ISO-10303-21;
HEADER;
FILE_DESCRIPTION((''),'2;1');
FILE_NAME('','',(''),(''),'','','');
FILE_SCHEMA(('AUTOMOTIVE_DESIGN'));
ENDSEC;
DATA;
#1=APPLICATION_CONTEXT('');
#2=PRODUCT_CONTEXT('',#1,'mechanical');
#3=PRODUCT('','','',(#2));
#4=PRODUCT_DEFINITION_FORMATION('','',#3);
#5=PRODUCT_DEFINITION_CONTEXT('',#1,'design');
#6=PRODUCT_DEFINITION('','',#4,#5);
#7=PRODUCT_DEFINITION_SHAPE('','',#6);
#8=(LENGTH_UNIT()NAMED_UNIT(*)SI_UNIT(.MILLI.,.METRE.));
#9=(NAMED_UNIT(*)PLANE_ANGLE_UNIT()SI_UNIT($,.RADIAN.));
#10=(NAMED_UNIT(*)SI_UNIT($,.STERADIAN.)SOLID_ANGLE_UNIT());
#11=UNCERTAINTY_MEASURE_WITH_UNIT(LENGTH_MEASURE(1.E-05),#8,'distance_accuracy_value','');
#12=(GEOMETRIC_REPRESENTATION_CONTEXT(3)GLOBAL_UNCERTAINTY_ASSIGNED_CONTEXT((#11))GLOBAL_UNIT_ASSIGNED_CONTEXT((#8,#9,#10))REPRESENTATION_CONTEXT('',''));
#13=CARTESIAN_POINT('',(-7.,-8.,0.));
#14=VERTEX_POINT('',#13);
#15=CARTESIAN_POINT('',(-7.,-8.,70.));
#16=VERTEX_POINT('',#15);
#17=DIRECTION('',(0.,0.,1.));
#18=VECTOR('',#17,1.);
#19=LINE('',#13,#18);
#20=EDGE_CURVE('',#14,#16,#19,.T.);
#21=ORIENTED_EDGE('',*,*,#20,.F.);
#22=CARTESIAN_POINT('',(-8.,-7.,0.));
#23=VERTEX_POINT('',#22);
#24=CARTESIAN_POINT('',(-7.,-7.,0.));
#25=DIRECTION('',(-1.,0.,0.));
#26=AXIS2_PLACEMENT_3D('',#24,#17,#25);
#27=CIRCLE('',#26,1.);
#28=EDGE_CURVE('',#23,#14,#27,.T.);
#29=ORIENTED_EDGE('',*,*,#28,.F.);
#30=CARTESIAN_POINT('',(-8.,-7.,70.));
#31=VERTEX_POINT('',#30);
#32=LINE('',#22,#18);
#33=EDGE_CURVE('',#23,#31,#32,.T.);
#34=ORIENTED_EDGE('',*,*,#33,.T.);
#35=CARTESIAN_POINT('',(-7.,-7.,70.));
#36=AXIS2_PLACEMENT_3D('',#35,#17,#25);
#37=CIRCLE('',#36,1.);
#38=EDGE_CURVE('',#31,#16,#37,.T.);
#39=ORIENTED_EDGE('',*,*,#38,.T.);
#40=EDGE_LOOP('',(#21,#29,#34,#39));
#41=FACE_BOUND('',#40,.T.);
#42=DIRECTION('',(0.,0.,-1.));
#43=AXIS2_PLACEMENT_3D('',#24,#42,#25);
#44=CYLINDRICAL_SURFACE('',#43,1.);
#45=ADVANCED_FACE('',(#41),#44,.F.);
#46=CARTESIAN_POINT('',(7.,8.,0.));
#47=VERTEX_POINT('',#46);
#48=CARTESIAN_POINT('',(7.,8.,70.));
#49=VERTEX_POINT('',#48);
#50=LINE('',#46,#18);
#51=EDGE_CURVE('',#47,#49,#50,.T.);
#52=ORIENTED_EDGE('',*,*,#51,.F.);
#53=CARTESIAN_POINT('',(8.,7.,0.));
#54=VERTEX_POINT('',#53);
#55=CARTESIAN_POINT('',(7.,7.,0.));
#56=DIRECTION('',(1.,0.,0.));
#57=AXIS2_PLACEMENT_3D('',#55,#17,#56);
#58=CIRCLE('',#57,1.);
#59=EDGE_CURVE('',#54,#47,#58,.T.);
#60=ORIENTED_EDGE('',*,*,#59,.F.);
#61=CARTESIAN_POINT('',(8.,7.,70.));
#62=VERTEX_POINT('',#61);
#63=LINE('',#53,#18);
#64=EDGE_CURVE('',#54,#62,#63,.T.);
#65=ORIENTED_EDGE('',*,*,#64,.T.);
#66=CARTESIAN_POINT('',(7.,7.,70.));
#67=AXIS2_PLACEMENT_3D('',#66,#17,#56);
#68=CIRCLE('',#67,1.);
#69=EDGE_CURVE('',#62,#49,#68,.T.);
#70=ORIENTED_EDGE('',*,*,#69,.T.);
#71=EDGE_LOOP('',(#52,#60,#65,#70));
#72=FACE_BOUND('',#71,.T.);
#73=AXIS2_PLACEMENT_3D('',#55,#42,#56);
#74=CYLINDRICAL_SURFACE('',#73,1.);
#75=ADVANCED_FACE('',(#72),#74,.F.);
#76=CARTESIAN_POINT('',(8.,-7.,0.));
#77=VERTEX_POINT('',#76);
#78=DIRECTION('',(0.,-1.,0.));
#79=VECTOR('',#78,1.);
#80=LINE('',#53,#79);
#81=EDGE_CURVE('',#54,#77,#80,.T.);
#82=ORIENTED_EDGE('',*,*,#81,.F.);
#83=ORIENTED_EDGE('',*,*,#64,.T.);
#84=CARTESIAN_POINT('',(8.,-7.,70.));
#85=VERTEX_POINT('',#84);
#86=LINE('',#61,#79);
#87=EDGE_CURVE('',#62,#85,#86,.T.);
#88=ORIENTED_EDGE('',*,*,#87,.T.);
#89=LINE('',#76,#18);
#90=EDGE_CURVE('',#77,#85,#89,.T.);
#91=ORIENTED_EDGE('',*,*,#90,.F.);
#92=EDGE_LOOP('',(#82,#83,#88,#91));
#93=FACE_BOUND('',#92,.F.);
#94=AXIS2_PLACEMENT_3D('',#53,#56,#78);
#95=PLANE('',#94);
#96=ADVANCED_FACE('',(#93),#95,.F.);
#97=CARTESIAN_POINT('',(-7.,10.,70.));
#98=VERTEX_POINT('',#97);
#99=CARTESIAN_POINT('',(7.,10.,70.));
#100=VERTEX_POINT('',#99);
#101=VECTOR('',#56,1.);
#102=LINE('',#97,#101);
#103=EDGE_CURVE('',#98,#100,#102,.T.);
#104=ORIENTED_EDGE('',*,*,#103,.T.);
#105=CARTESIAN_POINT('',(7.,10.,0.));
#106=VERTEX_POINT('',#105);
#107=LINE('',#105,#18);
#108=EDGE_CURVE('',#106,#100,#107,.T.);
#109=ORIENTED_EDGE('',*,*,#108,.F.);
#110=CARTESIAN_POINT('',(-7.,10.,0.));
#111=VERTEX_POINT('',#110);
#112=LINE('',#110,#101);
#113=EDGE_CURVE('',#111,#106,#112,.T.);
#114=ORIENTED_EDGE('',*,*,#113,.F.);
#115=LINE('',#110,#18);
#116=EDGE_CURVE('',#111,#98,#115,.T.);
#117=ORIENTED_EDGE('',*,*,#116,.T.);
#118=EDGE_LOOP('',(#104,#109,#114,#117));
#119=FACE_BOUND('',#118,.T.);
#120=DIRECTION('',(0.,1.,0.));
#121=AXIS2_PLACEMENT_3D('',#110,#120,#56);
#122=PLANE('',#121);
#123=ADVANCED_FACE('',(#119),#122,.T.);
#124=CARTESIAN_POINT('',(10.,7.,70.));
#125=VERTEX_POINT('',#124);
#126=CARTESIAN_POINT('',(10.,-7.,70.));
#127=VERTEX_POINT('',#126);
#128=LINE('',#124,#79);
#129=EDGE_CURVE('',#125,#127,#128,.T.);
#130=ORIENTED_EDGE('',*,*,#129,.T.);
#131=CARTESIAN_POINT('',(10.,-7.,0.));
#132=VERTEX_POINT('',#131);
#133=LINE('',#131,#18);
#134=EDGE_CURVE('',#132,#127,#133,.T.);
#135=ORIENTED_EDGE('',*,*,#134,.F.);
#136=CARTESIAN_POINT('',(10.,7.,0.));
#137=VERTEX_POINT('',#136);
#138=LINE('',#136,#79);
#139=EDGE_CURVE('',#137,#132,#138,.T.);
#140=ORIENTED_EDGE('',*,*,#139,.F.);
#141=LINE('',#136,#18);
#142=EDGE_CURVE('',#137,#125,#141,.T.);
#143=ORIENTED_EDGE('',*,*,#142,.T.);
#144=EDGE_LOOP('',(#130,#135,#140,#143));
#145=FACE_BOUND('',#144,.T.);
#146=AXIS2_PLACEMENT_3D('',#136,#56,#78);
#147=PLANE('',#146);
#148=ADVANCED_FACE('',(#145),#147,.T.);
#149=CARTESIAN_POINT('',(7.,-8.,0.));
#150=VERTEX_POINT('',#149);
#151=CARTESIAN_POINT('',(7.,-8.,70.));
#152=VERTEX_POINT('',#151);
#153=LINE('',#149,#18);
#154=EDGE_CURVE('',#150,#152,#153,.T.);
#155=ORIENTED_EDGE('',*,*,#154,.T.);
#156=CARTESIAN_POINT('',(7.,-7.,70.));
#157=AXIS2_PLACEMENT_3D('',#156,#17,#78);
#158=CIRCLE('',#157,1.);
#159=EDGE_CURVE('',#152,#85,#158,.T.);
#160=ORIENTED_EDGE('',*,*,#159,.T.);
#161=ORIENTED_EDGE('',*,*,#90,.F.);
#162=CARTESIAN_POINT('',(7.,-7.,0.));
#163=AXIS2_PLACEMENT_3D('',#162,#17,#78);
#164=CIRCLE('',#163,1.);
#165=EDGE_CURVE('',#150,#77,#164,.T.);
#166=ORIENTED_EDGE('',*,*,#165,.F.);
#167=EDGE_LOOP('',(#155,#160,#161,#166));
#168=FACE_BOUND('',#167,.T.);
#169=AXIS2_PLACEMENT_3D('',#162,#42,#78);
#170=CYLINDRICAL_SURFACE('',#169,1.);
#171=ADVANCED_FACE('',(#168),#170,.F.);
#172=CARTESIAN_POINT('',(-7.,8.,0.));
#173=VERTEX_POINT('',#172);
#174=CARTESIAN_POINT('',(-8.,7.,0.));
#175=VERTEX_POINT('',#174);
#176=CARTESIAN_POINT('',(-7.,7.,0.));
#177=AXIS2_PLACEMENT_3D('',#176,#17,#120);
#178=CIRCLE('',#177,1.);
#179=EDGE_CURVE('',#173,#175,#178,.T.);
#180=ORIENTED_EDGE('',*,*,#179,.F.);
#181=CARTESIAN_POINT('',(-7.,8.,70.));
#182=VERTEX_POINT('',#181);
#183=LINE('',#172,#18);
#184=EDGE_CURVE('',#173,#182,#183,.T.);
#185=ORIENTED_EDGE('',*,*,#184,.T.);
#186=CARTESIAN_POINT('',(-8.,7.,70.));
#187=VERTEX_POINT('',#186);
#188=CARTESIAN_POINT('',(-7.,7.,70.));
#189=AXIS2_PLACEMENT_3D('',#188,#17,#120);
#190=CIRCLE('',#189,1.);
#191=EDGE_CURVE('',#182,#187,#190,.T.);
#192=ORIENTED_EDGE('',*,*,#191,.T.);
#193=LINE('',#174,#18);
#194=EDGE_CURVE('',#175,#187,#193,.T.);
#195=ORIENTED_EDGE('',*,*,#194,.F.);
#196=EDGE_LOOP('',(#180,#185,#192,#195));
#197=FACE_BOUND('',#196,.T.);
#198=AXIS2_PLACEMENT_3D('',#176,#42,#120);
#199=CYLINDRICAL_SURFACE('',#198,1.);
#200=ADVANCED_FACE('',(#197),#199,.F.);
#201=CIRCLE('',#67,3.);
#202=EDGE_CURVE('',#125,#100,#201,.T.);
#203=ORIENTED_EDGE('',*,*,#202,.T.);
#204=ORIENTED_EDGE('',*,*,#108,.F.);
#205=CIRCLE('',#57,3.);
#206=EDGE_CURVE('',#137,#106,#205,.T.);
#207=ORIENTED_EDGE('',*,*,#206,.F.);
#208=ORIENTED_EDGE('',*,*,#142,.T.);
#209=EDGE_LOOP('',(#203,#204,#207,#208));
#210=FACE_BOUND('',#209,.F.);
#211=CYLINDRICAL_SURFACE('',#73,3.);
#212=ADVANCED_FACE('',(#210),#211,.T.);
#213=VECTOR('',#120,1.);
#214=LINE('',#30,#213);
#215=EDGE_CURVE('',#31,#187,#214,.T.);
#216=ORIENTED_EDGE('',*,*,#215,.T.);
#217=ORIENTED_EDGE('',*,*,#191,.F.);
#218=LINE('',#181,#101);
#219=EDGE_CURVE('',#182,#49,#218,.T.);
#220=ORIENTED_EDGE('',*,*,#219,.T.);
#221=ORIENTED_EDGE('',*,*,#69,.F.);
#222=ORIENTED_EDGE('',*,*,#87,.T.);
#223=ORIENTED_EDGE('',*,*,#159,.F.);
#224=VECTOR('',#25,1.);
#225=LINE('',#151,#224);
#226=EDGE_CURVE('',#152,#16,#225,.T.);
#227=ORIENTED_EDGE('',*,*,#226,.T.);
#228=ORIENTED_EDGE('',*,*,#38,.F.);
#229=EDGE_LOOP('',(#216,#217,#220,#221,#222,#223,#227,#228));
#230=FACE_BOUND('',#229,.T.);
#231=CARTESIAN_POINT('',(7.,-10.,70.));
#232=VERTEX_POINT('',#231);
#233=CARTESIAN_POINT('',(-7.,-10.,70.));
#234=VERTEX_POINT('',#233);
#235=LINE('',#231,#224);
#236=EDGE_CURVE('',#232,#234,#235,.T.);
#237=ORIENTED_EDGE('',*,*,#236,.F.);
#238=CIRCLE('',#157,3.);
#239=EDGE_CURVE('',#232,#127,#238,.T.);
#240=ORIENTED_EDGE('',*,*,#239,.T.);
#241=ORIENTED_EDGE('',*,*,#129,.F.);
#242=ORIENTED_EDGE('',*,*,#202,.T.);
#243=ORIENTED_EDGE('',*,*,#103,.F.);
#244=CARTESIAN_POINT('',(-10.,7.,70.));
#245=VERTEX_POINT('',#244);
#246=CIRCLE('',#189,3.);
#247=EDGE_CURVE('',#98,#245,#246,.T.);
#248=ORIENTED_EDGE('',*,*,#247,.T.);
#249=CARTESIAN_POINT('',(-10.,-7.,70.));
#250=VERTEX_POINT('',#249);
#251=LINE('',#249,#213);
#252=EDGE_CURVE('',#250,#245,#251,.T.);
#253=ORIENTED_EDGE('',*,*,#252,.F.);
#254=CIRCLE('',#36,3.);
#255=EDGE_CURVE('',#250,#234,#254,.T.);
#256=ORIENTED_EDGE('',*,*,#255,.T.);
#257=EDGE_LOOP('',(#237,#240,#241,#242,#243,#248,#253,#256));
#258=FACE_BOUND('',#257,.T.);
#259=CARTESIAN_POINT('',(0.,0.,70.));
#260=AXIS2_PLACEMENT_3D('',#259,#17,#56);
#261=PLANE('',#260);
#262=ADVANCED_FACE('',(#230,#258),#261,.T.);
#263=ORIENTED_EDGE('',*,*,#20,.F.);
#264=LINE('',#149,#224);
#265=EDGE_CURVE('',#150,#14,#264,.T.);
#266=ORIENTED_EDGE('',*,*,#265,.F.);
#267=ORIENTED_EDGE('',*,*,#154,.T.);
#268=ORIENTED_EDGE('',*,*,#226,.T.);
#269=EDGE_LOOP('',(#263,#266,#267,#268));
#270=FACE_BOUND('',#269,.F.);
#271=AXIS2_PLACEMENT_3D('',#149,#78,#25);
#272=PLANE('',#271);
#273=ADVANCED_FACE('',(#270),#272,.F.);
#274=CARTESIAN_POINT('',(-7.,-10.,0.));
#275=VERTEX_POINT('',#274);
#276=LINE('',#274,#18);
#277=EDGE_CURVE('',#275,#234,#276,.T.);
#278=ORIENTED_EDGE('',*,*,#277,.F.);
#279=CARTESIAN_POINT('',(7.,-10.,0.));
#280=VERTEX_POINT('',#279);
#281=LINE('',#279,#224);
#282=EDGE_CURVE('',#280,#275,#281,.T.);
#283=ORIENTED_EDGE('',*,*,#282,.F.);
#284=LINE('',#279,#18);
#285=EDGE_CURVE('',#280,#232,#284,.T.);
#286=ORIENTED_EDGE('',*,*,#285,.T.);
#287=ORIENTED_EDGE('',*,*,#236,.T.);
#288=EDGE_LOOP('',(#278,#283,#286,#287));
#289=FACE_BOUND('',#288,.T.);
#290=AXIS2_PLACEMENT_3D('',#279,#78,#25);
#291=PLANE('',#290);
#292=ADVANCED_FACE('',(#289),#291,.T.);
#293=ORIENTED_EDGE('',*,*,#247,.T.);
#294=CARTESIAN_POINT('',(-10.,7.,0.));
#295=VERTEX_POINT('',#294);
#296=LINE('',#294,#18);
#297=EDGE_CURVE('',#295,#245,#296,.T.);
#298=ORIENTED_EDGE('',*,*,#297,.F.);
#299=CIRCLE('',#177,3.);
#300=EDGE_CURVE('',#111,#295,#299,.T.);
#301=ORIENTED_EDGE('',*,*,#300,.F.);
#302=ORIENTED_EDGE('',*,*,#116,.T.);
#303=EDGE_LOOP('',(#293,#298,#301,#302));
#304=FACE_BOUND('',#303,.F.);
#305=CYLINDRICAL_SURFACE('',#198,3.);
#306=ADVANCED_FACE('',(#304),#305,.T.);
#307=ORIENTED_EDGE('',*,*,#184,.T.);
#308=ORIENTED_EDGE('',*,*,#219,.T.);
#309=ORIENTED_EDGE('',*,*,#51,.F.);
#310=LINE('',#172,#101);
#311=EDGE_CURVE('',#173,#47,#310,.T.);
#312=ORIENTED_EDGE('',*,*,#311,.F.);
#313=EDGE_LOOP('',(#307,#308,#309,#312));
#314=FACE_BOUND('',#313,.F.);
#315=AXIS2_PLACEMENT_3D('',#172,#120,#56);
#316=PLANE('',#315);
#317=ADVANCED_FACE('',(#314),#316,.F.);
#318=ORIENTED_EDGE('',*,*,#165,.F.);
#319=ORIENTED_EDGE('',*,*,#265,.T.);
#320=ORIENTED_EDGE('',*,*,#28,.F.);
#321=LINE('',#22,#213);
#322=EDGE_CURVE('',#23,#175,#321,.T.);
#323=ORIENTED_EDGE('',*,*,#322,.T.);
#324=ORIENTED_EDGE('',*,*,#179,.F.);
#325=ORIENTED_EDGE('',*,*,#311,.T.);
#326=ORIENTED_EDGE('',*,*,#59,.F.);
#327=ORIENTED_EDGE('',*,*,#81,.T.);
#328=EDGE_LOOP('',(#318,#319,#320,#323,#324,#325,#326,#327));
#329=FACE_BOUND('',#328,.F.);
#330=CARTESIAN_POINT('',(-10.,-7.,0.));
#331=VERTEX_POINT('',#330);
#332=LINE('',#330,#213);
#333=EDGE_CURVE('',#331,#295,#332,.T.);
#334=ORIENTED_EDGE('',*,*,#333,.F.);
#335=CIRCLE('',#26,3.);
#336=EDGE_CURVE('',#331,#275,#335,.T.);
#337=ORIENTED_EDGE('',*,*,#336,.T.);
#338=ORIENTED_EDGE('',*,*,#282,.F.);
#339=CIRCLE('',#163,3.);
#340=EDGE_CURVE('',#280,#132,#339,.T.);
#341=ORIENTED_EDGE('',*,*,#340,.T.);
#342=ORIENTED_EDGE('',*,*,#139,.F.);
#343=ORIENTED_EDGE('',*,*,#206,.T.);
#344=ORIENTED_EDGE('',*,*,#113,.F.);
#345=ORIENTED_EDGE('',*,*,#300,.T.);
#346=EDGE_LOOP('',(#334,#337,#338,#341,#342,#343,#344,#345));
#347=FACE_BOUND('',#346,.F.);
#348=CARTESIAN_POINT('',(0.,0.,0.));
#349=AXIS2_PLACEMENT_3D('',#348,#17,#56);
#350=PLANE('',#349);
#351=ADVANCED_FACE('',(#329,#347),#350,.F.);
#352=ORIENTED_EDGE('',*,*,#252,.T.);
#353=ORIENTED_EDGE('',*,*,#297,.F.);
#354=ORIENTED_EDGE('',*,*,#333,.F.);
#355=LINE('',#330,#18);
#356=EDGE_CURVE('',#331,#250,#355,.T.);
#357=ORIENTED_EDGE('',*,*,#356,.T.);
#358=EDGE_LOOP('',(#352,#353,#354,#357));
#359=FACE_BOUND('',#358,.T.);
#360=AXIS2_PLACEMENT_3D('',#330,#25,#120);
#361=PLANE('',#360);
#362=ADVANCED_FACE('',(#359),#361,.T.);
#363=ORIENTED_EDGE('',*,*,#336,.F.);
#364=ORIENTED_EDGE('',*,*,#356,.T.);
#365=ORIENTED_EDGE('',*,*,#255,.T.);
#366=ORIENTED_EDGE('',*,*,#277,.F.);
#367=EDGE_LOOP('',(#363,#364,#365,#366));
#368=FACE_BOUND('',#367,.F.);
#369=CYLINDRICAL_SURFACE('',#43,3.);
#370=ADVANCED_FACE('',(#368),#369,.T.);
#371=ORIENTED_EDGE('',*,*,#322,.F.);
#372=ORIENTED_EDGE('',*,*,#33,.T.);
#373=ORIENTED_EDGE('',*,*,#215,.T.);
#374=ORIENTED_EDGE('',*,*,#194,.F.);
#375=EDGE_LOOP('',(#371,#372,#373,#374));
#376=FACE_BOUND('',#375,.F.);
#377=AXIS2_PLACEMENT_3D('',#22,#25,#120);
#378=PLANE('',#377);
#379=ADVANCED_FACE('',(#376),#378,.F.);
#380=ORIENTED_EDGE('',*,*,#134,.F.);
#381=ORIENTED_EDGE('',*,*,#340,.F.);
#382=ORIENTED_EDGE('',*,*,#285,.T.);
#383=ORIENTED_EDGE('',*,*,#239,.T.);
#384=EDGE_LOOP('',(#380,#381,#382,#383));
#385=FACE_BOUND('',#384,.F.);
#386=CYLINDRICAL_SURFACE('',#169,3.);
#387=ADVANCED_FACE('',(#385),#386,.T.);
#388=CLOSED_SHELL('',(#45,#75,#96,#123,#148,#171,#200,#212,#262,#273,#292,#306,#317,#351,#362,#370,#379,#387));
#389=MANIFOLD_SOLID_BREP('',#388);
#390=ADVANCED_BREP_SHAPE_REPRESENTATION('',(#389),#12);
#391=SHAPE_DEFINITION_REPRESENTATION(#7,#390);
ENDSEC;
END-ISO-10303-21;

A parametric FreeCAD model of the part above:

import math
import FreeCAD as App
import Part
import Sketcher

V = App.Vector

doc = App.newDocument("Part")
body = doc.addObject("PartDesign::Body", "Body")

sketch1 = body.newObject("Sketcher::SketchObject", "Sketch")
sketch1.AttachmentSupport = (doc.getObject("XY_Plane"), [""])
sketch1.MapMode = "FlatFace"
sketch1.addGeometry(Part.LineSegment(V(-10, 7, 0), V(-10, -7, 0)), False)
sketch1.addGeometry(Part.ArcOfCircle(Part.Circle(V(-7, -7, 0), V(0, 0, 1), 3), math.radians(180), math.radians(270)), False)
sketch1.addGeometry(Part.LineSegment(V(-7, -10, 0), V(7, -10, 0)), False)
sketch1.addGeometry(Part.ArcOfCircle(Part.Circle(V(7, -7, 0), V(0, 0, 1), 3), math.radians(-90), math.radians(0)), False)
sketch1.addGeometry(Part.LineSegment(V(10, -7, 0), V(10, 7, 0)), False)
sketch1.addGeometry(Part.ArcOfCircle(Part.Circle(V(7, 7, 0), V(0, 0, 1), 3), math.radians(0), math.radians(90)), False)
sketch1.addGeometry(Part.LineSegment(V(7, 10, 0), V(-7, 10, 0)), False)
sketch1.addGeometry(Part.ArcOfCircle(Part.Circle(V(-7, 7, 0), V(0, 0, 1), 3), math.radians(90), math.radians(180)), False)
sketch1.addGeometry(Part.ArcOfCircle(Part.Circle(V(-7, 7, 0), V(0, 0, 1), 1), math.radians(90), math.radians(180)), False)
sketch1.addGeometry(Part.LineSegment(V(-7, 8, 0), V(7, 8, 0)), False)
sketch1.addGeometry(Part.ArcOfCircle(Part.Circle(V(7, 7, 0), V(0, 0, 1), 1), math.radians(0), math.radians(90)), False)
sketch1.addGeometry(Part.LineSegment(V(8, 7, 0), V(8, -7, 0)), False)
sketch1.addGeometry(Part.ArcOfCircle(Part.Circle(V(7, -7, 0), V(0, 0, 1), 1), math.radians(-90), math.radians(0)), False)
sketch1.addGeometry(Part.LineSegment(V(7, -8, 0), V(-7, -8, 0)), False)
sketch1.addGeometry(Part.ArcOfCircle(Part.Circle(V(-7, -7, 0), V(0, 0, 1), 1), math.radians(180), math.radians(270)), False)
sketch1.addGeometry(Part.LineSegment(V(-8, -7, 0), V(-8, 7, 0)), False)
sketch1.addConstraint(Sketcher.Constraint("Tangent", 0, 2, 1, 1))
sketch1.addConstraint(Sketcher.Constraint("Tangent", 1, 2, 2, 1))
sketch1.addConstraint(Sketcher.Constraint("Tangent", 2, 2, 3, 1))
sketch1.addConstraint(Sketcher.Constraint("Tangent", 3, 2, 4, 1))
sketch1.addConstraint(Sketcher.Constraint("Tangent", 4, 2, 5, 1))
sketch1.addConstraint(Sketcher.Constraint("Tangent", 5, 2, 6, 1))
sketch1.addConstraint(Sketcher.Constraint("Tangent", 6, 2, 7, 1))
sketch1.addConstraint(Sketcher.Constraint("Tangent", 7, 2, 0, 1))
sketch1.addConstraint(Sketcher.Constraint("Tangent", 8, 1, 9, 1))
sketch1.addConstraint(Sketcher.Constraint("Tangent", 9, 2, 10, 2))
sketch1.addConstraint(Sketcher.Constraint("Tangent", 10, 1, 11, 1))
sketch1.addConstraint(Sketcher.Constraint("Tangent", 11, 2, 12, 2))
sketch1.addConstraint(Sketcher.Constraint("Tangent", 12, 1, 13, 1))
sketch1.addConstraint(Sketcher.Constraint("Tangent", 13, 2, 14, 2))
sketch1.addConstraint(Sketcher.Constraint("Tangent", 14, 1, 15, 1))
sketch1.addConstraint(Sketcher.Constraint("Tangent", 15, 2, 8, 2))
sketch1.addConstraint(Sketcher.Constraint("Vertical", 0))
sketch1.addConstraint(Sketcher.Constraint("Horizontal", 2))
sketch1.addConstraint(Sketcher.Constraint("Vertical", 4))
sketch1.addConstraint(Sketcher.Constraint("Horizontal", 6))
sketch1.addConstraint(Sketcher.Constraint("Horizontal", 9))
sketch1.addConstraint(Sketcher.Constraint("Vertical", 11))
sketch1.addConstraint(Sketcher.Constraint("Horizontal", 13))
sketch1.addConstraint(Sketcher.Constraint("Vertical", 15))
sketch1.addConstraint(Sketcher.Constraint("Coincident", 8, 3, 7, 3))
sketch1.addConstraint(Sketcher.Constraint("Coincident", 10, 3, 5, 3))
sketch1.addConstraint(Sketcher.Constraint("Coincident", 12, 3, 3, 3))
sketch1.addConstraint(Sketcher.Constraint("Equal", 1, 3))
sketch1.addConstraint(Sketcher.Constraint("Equal", 3, 5))
sketch1.addConstraint(Sketcher.Constraint("Equal", 5, 7))
sketch1.addConstraint(Sketcher.Constraint("Equal", 12, 14))
sketch1.addConstraint(Sketcher.Constraint("Symmetric", 1, 3, 5, 3, -1, 1))
sketch1.addConstraint(Sketcher.Constraint("Equal", 13, 0))
sketch1.addConstraint(Sketcher.Constraint("Radius", 1, 3.0))
sketch1.addConstraint(Sketcher.Constraint("Radius", 8, 1.0))
sketch1.addConstraint(Sketcher.Constraint("DistanceX", 0, 2, -1, 1, 10.0))
pad1 = body.newObject("PartDesign::Pad", "Pad")
pad1.Profile = sketch1
pad1.Length = 70

doc.recompute()
